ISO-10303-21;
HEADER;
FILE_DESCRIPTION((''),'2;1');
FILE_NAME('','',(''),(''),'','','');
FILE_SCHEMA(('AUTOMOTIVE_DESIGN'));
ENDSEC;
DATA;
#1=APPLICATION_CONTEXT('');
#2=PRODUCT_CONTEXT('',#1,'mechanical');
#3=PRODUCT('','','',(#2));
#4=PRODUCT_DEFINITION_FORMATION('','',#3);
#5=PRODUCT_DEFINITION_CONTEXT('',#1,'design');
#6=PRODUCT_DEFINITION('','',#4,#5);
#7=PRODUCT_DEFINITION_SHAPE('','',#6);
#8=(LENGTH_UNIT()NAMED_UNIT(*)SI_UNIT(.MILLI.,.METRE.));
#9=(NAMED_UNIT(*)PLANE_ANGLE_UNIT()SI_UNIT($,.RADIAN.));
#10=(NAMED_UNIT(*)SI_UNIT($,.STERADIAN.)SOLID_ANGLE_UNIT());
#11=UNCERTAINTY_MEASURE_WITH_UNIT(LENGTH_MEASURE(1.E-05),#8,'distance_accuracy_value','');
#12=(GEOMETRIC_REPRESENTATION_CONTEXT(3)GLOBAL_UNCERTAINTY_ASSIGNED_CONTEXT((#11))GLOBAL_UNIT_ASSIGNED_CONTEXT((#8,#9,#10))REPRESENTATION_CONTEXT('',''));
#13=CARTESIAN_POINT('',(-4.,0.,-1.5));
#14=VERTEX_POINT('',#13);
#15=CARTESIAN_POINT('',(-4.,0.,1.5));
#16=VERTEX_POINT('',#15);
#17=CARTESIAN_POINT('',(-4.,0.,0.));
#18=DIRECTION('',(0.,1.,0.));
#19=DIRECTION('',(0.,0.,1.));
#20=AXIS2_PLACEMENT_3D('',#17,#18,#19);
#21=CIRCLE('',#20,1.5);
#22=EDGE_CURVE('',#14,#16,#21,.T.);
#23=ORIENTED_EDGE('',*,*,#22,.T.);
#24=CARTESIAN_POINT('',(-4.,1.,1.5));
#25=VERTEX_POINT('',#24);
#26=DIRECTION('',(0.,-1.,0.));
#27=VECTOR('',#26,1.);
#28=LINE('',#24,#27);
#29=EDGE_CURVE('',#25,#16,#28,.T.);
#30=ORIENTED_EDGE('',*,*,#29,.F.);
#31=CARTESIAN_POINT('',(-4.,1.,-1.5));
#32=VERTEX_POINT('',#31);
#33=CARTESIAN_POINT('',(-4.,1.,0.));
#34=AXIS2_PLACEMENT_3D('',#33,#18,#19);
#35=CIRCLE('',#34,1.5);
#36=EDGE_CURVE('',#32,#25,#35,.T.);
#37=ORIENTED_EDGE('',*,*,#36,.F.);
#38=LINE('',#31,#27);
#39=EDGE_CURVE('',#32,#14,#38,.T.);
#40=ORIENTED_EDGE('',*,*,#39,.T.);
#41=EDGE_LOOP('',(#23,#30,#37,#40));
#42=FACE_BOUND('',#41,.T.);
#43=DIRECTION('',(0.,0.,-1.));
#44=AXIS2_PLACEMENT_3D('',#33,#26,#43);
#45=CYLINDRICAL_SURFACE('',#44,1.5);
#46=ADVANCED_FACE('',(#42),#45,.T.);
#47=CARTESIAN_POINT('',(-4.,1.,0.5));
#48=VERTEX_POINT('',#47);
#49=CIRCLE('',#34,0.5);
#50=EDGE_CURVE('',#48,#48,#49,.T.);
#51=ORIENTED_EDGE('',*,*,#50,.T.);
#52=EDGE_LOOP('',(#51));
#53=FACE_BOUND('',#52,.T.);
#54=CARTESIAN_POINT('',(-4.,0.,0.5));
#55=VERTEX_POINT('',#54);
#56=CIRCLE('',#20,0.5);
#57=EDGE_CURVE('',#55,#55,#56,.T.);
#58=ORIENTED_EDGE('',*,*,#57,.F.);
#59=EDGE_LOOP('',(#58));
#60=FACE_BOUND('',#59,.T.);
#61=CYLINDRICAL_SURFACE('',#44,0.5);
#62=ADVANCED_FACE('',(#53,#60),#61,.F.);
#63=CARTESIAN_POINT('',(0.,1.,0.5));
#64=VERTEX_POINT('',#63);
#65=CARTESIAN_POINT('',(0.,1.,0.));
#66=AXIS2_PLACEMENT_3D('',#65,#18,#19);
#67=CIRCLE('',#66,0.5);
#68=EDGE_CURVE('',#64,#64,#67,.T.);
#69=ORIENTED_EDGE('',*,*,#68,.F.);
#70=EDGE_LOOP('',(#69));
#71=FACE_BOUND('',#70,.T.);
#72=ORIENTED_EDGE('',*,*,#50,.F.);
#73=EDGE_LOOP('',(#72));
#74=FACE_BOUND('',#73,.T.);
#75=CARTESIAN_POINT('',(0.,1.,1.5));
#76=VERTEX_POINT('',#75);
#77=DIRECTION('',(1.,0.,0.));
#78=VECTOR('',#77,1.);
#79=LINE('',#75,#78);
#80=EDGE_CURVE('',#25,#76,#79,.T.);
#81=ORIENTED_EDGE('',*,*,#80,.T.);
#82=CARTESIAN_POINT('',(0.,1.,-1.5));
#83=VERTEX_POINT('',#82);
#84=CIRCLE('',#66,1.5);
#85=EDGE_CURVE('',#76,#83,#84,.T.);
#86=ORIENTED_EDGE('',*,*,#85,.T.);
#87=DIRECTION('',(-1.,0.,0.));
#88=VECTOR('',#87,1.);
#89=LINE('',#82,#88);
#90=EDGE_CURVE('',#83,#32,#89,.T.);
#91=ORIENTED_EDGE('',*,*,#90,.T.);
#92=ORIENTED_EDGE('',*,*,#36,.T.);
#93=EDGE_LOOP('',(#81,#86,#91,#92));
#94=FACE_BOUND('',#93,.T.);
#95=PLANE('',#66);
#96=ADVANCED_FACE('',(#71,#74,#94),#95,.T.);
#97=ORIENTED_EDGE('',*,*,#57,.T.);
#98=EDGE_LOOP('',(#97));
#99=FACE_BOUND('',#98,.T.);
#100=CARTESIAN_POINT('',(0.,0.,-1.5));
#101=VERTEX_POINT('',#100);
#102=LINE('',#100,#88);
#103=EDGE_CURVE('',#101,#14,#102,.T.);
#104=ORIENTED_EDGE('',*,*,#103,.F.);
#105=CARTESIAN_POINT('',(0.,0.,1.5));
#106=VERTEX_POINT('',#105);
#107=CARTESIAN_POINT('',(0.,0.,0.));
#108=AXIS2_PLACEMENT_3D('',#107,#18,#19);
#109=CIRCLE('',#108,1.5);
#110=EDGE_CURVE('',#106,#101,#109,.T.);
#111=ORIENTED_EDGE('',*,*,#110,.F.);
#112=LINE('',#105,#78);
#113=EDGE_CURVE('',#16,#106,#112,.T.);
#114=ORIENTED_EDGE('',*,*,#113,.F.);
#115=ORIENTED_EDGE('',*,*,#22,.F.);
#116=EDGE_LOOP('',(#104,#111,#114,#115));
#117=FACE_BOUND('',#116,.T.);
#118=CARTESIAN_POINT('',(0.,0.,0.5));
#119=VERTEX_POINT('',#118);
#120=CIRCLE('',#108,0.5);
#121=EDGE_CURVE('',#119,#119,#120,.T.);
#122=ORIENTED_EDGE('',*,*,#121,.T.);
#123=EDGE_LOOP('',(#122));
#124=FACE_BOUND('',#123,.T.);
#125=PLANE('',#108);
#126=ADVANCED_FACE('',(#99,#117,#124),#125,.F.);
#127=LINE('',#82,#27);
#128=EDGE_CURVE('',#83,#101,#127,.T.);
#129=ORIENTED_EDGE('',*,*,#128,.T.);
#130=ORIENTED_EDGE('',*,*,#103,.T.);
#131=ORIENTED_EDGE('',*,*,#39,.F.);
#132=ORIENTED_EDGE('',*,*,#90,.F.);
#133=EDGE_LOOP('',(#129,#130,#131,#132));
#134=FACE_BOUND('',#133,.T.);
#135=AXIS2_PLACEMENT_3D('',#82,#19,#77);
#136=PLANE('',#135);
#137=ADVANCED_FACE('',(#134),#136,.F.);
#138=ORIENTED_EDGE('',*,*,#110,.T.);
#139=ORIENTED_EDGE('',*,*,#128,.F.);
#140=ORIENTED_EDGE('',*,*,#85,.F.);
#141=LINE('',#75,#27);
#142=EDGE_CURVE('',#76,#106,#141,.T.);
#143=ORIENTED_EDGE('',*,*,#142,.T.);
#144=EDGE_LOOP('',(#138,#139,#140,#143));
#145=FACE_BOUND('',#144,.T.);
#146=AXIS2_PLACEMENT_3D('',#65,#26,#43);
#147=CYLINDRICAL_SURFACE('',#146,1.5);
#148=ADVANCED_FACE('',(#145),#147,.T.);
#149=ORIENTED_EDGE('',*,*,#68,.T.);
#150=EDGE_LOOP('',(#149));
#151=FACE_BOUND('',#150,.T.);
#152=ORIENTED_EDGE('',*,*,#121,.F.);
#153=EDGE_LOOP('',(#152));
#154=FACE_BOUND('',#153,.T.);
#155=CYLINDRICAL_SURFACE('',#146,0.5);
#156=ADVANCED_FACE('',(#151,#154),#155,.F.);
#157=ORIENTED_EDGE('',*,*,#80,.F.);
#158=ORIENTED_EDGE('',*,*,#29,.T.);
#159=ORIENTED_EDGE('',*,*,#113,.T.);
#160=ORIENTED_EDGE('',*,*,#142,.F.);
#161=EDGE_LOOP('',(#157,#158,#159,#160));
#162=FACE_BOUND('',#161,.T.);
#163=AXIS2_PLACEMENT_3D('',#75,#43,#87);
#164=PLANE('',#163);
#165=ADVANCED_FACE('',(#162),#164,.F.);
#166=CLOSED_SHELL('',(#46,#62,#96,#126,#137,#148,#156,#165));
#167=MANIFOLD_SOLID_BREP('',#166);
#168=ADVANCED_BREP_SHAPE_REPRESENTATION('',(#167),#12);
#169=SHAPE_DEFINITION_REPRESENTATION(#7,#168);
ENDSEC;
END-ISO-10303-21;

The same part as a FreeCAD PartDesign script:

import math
import FreeCAD as App
import Part
import Sketcher

V = App.Vector

doc = App.newDocument("Part")
params = doc.addObject("Spreadsheet::Sheet", "Params")
for row, (alias, value) in enumerate([
    ("sketch1_diameter", "1 mm"),
    ("sketch1_radius", "1.5 mm"),
    ("sketch1_width", "4 mm"),
    ("pad1_length", "1 mm"),
], start=1):
    params.set(f"A{row}", alias)
    params.set(f"B{row}", "=" + value)
    params.setAlias(f"B{row}", alias)

body = doc.addObject("PartDesign::Body", "Body")

sketch1 = doc.addObject("Sketcher::SketchObject", "Sketch")
body.addObject(sketch1)
sketch1.AttachmentSupport = (doc.XZ_Plane, [""])
sketch1.MapMode = "FlatFace"
sketch1.addGeometry([
    Part.LineSegment(V(-4, 1.5, 0), V(0, 1.5, 0)),
    Part.ArcOfCircle(Part.Circle(V(0, 0, 0), V(0, 0, 1), 1.5), math.radians(-90), math.radians(90)),
    Part.LineSegment(V(0, -1.5, 0), V(-4, -1.5, 0)),
    Part.ArcOfCircle(Part.Circle(V(-4, 0, 0), V(0, 0, 1), 1.5), math.radians(90), math.radians(270)),
    Part.Circle(V(0, 0, 0), V(0, 0, 1), 0.5),
    Part.Circle(V(-4, 0, 0), V(0, 0, 1), 0.5),
], False)
sketch1.addConstraint([
    Sketcher.Constraint("Tangent", 0, 2, 1, 2),
    Sketcher.Constraint("Tangent", 1, 1, 2, 1),
    Sketcher.Constraint("Tangent", 2, 2, 3, 2),
    Sketcher.Constraint("Tangent", 3, 1, 0, 1),
    Sketcher.Constraint("Horizontal", 0),
    Sketcher.Constraint("Horizontal", 2),
    Sketcher.Constraint("Coincident", 1, 3, -1, 1),
    Sketcher.Constraint("Coincident", 4, 3, -1, 1),
    Sketcher.Constraint("Coincident", 5, 3, 3, 3),
    Sketcher.Constraint("Equal", 4, 5),
    Sketcher.Constraint("Diameter", 4, 1.0),
    Sketcher.Constraint("Radius", 1, 1.5),
    Sketcher.Constraint("DistanceX", 0, 1, 0, 2, 4.0),
])
sketch1.setExpression("Constraints[10]", "Params.sketch1_diameter")
sketch1.setExpression("Constraints[11]", "Params.sketch1_radius")
sketch1.setExpression("Constraints[12]", "Params.sketch1_width")
pad1 = doc.addObject("PartDesign::Pad", "Pad")
body.addObject(pad1)
pad1.Profile = sketch1
pad1.setExpression("Length", "Params.pad1_length")
pad1.Reversed = True

doc.recompute()
